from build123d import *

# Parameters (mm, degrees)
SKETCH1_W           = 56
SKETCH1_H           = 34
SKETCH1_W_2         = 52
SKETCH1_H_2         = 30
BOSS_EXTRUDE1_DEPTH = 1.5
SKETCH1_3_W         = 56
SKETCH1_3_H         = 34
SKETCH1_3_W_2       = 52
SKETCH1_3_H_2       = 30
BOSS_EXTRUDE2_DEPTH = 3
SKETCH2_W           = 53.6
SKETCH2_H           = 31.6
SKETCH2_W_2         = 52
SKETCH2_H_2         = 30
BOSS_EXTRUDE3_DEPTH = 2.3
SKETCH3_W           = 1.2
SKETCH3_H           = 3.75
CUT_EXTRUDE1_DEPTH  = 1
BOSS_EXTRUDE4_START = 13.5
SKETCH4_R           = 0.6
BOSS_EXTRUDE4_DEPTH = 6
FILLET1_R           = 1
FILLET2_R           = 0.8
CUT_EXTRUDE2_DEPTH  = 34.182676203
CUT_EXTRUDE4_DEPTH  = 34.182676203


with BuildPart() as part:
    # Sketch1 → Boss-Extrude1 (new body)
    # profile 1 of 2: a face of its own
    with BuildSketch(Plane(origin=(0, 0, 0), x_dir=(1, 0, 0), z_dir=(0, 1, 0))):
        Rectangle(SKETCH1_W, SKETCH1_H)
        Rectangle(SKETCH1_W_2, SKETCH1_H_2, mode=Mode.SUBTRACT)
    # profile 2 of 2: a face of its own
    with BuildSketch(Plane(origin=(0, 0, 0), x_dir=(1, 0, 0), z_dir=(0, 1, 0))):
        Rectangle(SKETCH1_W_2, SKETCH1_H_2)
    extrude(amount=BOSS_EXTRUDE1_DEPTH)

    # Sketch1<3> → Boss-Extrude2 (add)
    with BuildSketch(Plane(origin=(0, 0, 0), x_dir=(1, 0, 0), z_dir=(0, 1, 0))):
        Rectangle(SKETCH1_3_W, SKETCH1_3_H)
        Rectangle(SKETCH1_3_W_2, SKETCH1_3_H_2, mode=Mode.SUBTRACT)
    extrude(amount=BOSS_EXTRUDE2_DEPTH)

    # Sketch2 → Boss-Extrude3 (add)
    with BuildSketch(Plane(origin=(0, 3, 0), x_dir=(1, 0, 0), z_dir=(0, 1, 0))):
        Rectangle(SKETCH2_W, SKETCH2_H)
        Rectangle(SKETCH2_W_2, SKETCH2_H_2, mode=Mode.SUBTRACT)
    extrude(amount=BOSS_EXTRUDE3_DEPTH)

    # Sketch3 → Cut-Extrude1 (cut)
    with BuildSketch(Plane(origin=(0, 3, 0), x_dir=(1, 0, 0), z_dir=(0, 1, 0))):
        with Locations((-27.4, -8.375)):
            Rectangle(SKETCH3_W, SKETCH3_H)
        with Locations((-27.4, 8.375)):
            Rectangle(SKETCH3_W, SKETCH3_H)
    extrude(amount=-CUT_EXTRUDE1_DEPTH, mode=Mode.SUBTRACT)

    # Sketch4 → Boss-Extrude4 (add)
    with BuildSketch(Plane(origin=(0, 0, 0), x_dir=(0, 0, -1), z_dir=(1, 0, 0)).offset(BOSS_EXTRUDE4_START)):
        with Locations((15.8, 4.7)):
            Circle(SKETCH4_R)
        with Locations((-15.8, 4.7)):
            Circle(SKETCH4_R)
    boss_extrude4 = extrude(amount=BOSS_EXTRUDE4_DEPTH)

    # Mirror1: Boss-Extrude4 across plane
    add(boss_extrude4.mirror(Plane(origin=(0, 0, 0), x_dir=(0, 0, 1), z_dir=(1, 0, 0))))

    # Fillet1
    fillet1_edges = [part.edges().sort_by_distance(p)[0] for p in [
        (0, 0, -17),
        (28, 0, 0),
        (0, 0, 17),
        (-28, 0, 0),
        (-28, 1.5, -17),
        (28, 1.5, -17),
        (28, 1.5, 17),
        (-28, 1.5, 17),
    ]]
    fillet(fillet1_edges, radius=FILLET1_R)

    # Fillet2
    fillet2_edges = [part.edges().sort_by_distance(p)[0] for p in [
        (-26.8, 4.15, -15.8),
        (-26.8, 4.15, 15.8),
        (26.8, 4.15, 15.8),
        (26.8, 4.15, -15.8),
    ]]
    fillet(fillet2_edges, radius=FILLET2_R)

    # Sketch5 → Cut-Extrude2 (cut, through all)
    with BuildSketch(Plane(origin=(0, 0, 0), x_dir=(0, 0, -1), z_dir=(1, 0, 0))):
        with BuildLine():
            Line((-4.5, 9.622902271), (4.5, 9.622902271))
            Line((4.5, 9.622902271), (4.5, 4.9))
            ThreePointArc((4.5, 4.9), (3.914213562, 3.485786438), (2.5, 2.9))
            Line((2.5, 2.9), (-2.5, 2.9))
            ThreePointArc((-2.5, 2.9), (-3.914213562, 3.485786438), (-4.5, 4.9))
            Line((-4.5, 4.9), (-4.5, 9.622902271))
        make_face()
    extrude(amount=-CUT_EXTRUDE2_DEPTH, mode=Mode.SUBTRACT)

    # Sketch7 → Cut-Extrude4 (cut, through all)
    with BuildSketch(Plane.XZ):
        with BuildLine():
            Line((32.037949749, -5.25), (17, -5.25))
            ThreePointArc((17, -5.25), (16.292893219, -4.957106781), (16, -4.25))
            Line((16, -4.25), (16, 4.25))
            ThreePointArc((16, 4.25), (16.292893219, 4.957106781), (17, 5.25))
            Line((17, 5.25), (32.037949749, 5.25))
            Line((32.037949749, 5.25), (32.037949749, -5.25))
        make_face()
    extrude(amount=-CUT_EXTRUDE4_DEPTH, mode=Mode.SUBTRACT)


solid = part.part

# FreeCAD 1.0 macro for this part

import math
import FreeCAD as App
import Part
import Sketcher


def edges_at(feature, points):
    """Names of the edges that pass closest to the given points."""
    edges = feature.Shape.Edges
    near = lambda p: min(range(len(edges)), key=lambda i: edges[i].distToShape(Part.Vertex(*p))[0])
    return sorted({f"Edge{near(p) + 1}" for p in points})


def add_polygon(sketch, points):
    """Adds a closed chain of lines whose ends are joined by coincident constraints."""
    first, n = sketch.GeometryCount, len(points)
    for a, b in zip(points, points[1:] + points[:1]):
        sketch.addGeometry(Part.LineSegment(App.Vector(*a, 0), App.Vector(*b, 0)), False)
    for i in range(n):
        sketch.addConstraint(Sketcher.Constraint("Coincident", first + i, 2, first + (i + 1) % n, 1))

doc = App.newDocument("Part")
body = doc.addObject("PartDesign::Body", "Body")

# Sketch on XZ plane
sketch1 = doc.addObject("Sketcher::SketchObject", "Sketch")
body.addObject(sketch1)
sketch1.AttachmentSupport = (doc.XZ_Plane, [""])
sketch1.MapMode = "FlatFace"
add_polygon(sketch1, [(-28, -17), (-28, 17), (28, 17), (28, -17)])  # lines 0-3
sketch1.addConstraint([
    Sketcher.Constraint("Vertical", 0),
    Sketcher.Constraint("Horizontal", 1),
    Sketcher.Constraint("Vertical", 2),
    Sketcher.Constraint("Horizontal", 3),
    Sketcher.Constraint("Symmetric", 0, 2, 2, 2, -1, 1),
    Sketcher.Constraint("DistanceX", 1, 1, 1, 2, 56.0),
    Sketcher.Constraint("DistanceY", 0, 1, 0, 2, 34.0),
])
pad1 = doc.addObject("PartDesign::Pad", "Pad")
body.addObject(pad1)
pad1.Profile = sketch1
pad1.Length = 1.5
pad1.Reversed = True

# Sketch on XZ plane
sketch2 = doc.addObject("Sketcher::SketchObject", "Sketch001")
body.addObject(sketch2)
sketch2.AttachmentSupport = (doc.XZ_Plane, [""])
sketch2.MapMode = "FlatFace"
add_polygon(sketch2, [(-28, -17), (-28, 17), (28, 17), (28, -17)])  # lines 0-3
add_polygon(sketch2, [(26, 15), (-26, 15), (-26, -15), (26, -15)])  # lines 4-7
sketch2.addConstraint([
    Sketcher.Constraint("Vertical", 0),
    Sketcher.Constraint("Horizontal", 1),
    Sketcher.Constraint("Vertical", 2),
    Sketcher.Constraint("Horizontal", 3),
    Sketcher.Constraint("Horizontal", 4),
    Sketcher.Constraint("Vertical", 5),
    Sketcher.Constraint("Horizontal", 6),
    Sketcher.Constraint("Vertical", 7),
    Sketcher.Constraint("Symmetric", 0, 2, 2, 2, -1, 1),
    Sketcher.Constraint("Symmetric", 4, 2, 6, 2, -1, 1),
    Sketcher.Constraint("DistanceX", 1, 1, 1, 2, 56.0),
    Sketcher.Constraint("DistanceX", 4, 2, 4, 1, 52.0),
    Sketcher.Constraint("DistanceY", 0, 1, 0, 2, 34.0),
    Sketcher.Constraint("DistanceY", 5, 2, 5, 1, 30.0),
])
pad2 = doc.addObject("PartDesign::Pad", "Pad001")
body.addObject(pad2)
pad2.Profile = sketch2
pad2.Length = 3
pad2.Reversed = True

# Sketch on XZ plane
sketch3 = doc.addObject("Sketcher::SketchObject", "Sketch002")
body.addObject(sketch3)
sketch3.AttachmentSupport = (doc.XZ_Plane, [""])
sketch3.MapMode = "FlatFace"
sketch3.AttachmentOffset = App.Placement(App.Vector(0, 0, -3), App.Rotation())
add_polygon(sketch3, [(-27, -16), (-27, 16), (27, 16), (27, -16)])  # lines 0-3
add_polygon(sketch3, [(26, 15), (-26, 15), (-26, -15), (26, -15)])  # lines 4-7
sketch3.addConstraint([
    Sketcher.Constraint("Vertical", 0),
    Sketcher.Constraint("Horizontal", 1),
    Sketcher.Constraint("Vertical", 2),
    Sketcher.Constraint("Horizontal", 3),
    Sketcher.Constraint("Horizontal", 4),
    Sketcher.Constraint("Vertical", 5),
    Sketcher.Constraint("Horizontal", 6),
    Sketcher.Constraint("Vertical", 7),
    Sketcher.Constraint("Symmetric", 0, 2, 2, 2, -1, 1),
    Sketcher.Constraint("Symmetric", 4, 2, 6, 2, -1, 1),
    Sketcher.Constraint("DistanceX", 4, 2, 4, 1, 52.0),
    Sketcher.Constraint("DistanceY", 5, 2, 5, 1, 30.0),
    Sketcher.Constraint("DistanceX", 1, 1, 1, 2, 53.6),
    Sketcher.Constraint("DistanceY", 0, 1, 0, 2, 31.6),
])
pad3 = doc.addObject("PartDesign::Pad", "Pad002")
body.addObject(pad3)
pad3.Profile = sketch3
pad3.Length = 2.3
pad3.Reversed = True

# Sketch on XZ plane
sketch4 = doc.addObject("Sketcher::SketchObject", "Sketch003")
body.addObject(sketch4)
sketch4.AttachmentSupport = (doc.XZ_Plane, [""])
sketch4.MapMode = "FlatFace"
sketch4.AttachmentOffset = App.Placement(App.Vector(0, 0, -3), App.Rotation())
add_polygon(sketch4, [(-28, 6.5), (-28, 10.2), (-26.8, 10.2), (-26.8, 6.5)])  # lines 0-3
add_polygon(sketch4, [(-28, -10.2), (-28, -6.5), (-26.8, -6.5), (-26.8, -10.2)])  # lines 4-7
sketch4.addConstraint([
    Sketcher.Constraint("Vertical", 0),
    Sketcher.Constraint("Horizontal", 1),
    Sketcher.Constraint("Vertical", 2),
    Sketcher.Constraint("Horizontal", 3),
    Sketcher.Constraint("Vertical", 4),
    Sketcher.Constraint("Horizontal", 5),
    Sketcher.Constraint("Vertical", 6),
    Sketcher.Constraint("Horizontal", 7),
    Sketcher.Constraint("Symmetric", 3, 2, 4, 2, -1),
    Sketcher.Constraint("Symmetric", 1, 2, 6, 2, -1),
    Sketcher.Constraint("DistanceX", 1, 1, 1, 2, 1.2),
    Sketcher.Constraint("DistanceX", 0, 2, -1, 1, 28.0),
    Sketcher.Constraint("DistanceY", 4, 2, 3, 2, 13.0),
    Sketcher.Constraint("DistanceY", 0, 1, 0, 2, 3.75),
])
pocket1 = doc.addObject("PartDesign::Pocket", "Pocket")
body.addObject(pocket1)
pocket1.Profile = sketch4
pocket1.Length = 1
pocket1.Reversed = True

# Sketch on YZ plane
sketch5 = doc.addObject("Sketcher::SketchObject", "Sketch004")
body.addObject(sketch5)
sketch5.AttachmentSupport = (doc.YZ_Plane, [""])
sketch5.MapMode = "FlatFace"
sketch5.AttachmentOffset = App.Placement(App.Vector(0, 0, 13.5), App.Rotation())
sketch5.addGeometry([
    Part.Circle(App.Vector(4.7, -15.8, 0), App.Vector(0, 0, 1), 0.6),
    Part.Circle(App.Vector(4.7, 15.8, 0), App.Vector(0, 0, 1), 0.6),
], False)
sketch5.addConstraint([
    Sketcher.Constraint("Equal", 0, 1),
    Sketcher.Constraint("Symmetric", 0, 3, 1, 3, -1),
    Sketcher.Constraint("Diameter", 0, 1.2),
    Sketcher.Constraint("DistanceX", -1, 1, 0, 3, 4.7),
    Sketcher.Constraint("DistanceY", 0, 3, -1, 1, 15.8),
])
pad4 = doc.addObject("PartDesign::Pad", "Pad003")
body.addObject(pad4)
pad4.Profile = sketch5
pad4.Length = 6
doc.recompute()

mirrored = doc.addObject("PartDesign::Mirrored", "Mirrored")
body.addObject(mirrored)
mirrored.Originals = [pad4]
mirrored.MirrorPlane = (doc.YZ_Plane, [""])
body.Tip = mirrored
doc.recompute()

fillet = doc.addObject("PartDesign::Fillet", "Fillet")
body.addObject(fillet)
fillet.Base = (mirrored, edges_at(mirrored, [
    (0, 0, -17),
    (28, 0, 0),
    (0, 0, 17),
    (-28, 0, 0),
    (-28, 1.5, -17),
    (28, 1.5, -17),
    (28, 1.5, 17),
    (-28, 1.5, 17),
]))
fillet.Radius = 1
doc.recompute()

fillet2 = doc.addObject("PartDesign::Fillet", "Fillet001")
body.addObject(fillet2)
fillet2.Base = (fillet, edges_at(fillet, [
    (-26.8, 4.15, -15.8),
    (-26.8, 4.15, 15.8),
    (26.8, 4.15, 15.8),
    (26.8, 4.15, -15.8),
]))
fillet2.Radius = 0.8

# Sketch on YZ plane
sketch6 = doc.addObject("Sketcher::SketchObject", "Sketch005")
body.addObject(sketch6)
sketch6.AttachmentSupport = (doc.YZ_Plane, [""])
sketch6.MapMode = "FlatFace"
sketch6.addGeometry([
    Part.LineSegment(App.Vector(9.6, -4.5, 0), App.Vector(9.6, 4.5, 0)),  # 0
    Part.LineSegment(App.Vector(9.6, 4.5, 0), App.Vector(4.9, 4.5, 0)),  # 1
    Part.ArcOfCircle(Part.Circle(App.Vector(4.9, 2.5, 0), App.Vector(0, 0, 1), 2), math.radians(90), math.radians(180)),  # 2
    Part.LineSegment(App.Vector(2.9, 2.5, 0), App.Vector(2.9, -2.5, 0)),  # 3
    Part.ArcOfCircle(Part.Circle(App.Vector(4.9, -2.5, 0), App.Vector(0, 0, 1), 2), math.radians(-180), math.radians(-90)),  # 4
    Part.LineSegment(App.Vector(4.9, -4.5, 0), App.Vector(9.6, -4.5, 0)),  # 5
], False)
sketch6.addConstraint([
    Sketcher.Constraint("Coincident", 0, 2, 1, 1),
    Sketcher.Constraint("Tangent", 1, 2, 2, 1),
    Sketcher.Constraint("Tangent", 2, 2, 3, 1),
    Sketcher.Constraint("Tangent", 3, 2, 4, 1),
    Sketcher.Constraint("Tangent", 4, 2, 5, 1),
    Sketcher.Constraint("Coincident", 5, 2, 0, 1),
    Sketcher.Constraint("Vertical", 0),
    Sketcher.Constraint("Horizontal", 1),
    Sketcher.Constraint("Vertical", 3),
    Sketcher.Constraint("Horizontal", 5),
    Sketcher.Constraint("Equal", 2, 4),
    Sketcher.Constraint("Radius", 2, 2.0),
    Sketcher.Constraint("DistanceY", 0, 1, 0, 2, 9.0),
    Sketcher.Constraint("DistanceX", -1, 1, 2, 3, 4.9),
    Sketcher.Constraint("DistanceY", -1, 1, 2, 3, 2.5),
    Sketcher.Constraint("DistanceX", 1, 2, 1, 1, 4.722902),
])
pocket2 = doc.addObject("PartDesign::Pocket", "Pocket001")
body.addObject(pocket2)
pocket2.Profile = sketch6
pocket2.Type = "ThroughAll"

# Sketch on XZ plane
sketch7 = doc.addObject("Sketcher::SketchObject", "Sketch006")
body.addObject(sketch7)
sketch7.AttachmentSupport = (doc.XZ_Plane, [""])
sketch7.MapMode = "FlatFace"
sketch7.addGeometry([
    Part.LineSegment(App.Vector(17, -5.2, 0), App.Vector(32, -5.2, 0)),  # 0
    Part.LineSegment(App.Vector(32, -5.2, 0), App.Vector(32, 5.2, 0)),  # 1
    Part.LineSegment(App.Vector(32, 5.2, 0), App.Vector(17, 5.2, 0)),  # 2
    Part.ArcOfCircle(Part.Circle(App.Vector(17, 4.2, 0), App.Vector(0, 0, 1), 1), math.radians(90), math.radians(180)),  # 3
    Part.LineSegment(App.Vector(16, 4.2, 0), App.Vector(16, -4.2, 0)),  # 4
    Part.ArcOfCircle(Part.Circle(App.Vector(17, -4.2, 0), App.Vector(0, 0, 1), 1), math.radians(-180), math.radians(-90)),  # 5
], False)
sketch7.addConstraint([
    Sketcher.Constraint("Coincident", 0, 2, 1, 1),
    Sketcher.Constraint("Coincident", 1, 2, 2, 1),
    Sketcher.Constraint("Tangent", 2, 2, 3, 1),
    Sketcher.Constraint("Tangent", 3, 2, 4, 1),
    Sketcher.Constraint("Tangent", 4, 2, 5, 1),
    Sketcher.Constraint("Tangent", 5, 2, 0, 1),
    Sketcher.Constraint("Horizontal", 0),
    Sketcher.Constraint("Vertical", 1),
    Sketcher.Constraint("Horizontal", 2),
    Sketcher.Constraint("Vertical", 4),
    Sketcher.Constraint("Equal", 3, 5),
    Sketcher.Constraint("Radius", 3, 1.0),
    Sketcher.Constraint("DistanceY", 1, 1, 1, 2, 10.5),
    Sketcher.Constraint("DistanceX", -1, 1, 3, 3, 17.0),
    Sketcher.Constraint("DistanceY", -1, 1, 3, 3, 4.25),
    Sketcher.Constraint("DistanceX", 0, 1, 0, 2, 15.03795),
])
pocket3 = doc.addObject("PartDesign::Pocket", "Pocket002")
body.addObject(pocket3)
pocket3.Profile = sketch7
pocket3.Type = "ThroughAll"

doc.recompute()
